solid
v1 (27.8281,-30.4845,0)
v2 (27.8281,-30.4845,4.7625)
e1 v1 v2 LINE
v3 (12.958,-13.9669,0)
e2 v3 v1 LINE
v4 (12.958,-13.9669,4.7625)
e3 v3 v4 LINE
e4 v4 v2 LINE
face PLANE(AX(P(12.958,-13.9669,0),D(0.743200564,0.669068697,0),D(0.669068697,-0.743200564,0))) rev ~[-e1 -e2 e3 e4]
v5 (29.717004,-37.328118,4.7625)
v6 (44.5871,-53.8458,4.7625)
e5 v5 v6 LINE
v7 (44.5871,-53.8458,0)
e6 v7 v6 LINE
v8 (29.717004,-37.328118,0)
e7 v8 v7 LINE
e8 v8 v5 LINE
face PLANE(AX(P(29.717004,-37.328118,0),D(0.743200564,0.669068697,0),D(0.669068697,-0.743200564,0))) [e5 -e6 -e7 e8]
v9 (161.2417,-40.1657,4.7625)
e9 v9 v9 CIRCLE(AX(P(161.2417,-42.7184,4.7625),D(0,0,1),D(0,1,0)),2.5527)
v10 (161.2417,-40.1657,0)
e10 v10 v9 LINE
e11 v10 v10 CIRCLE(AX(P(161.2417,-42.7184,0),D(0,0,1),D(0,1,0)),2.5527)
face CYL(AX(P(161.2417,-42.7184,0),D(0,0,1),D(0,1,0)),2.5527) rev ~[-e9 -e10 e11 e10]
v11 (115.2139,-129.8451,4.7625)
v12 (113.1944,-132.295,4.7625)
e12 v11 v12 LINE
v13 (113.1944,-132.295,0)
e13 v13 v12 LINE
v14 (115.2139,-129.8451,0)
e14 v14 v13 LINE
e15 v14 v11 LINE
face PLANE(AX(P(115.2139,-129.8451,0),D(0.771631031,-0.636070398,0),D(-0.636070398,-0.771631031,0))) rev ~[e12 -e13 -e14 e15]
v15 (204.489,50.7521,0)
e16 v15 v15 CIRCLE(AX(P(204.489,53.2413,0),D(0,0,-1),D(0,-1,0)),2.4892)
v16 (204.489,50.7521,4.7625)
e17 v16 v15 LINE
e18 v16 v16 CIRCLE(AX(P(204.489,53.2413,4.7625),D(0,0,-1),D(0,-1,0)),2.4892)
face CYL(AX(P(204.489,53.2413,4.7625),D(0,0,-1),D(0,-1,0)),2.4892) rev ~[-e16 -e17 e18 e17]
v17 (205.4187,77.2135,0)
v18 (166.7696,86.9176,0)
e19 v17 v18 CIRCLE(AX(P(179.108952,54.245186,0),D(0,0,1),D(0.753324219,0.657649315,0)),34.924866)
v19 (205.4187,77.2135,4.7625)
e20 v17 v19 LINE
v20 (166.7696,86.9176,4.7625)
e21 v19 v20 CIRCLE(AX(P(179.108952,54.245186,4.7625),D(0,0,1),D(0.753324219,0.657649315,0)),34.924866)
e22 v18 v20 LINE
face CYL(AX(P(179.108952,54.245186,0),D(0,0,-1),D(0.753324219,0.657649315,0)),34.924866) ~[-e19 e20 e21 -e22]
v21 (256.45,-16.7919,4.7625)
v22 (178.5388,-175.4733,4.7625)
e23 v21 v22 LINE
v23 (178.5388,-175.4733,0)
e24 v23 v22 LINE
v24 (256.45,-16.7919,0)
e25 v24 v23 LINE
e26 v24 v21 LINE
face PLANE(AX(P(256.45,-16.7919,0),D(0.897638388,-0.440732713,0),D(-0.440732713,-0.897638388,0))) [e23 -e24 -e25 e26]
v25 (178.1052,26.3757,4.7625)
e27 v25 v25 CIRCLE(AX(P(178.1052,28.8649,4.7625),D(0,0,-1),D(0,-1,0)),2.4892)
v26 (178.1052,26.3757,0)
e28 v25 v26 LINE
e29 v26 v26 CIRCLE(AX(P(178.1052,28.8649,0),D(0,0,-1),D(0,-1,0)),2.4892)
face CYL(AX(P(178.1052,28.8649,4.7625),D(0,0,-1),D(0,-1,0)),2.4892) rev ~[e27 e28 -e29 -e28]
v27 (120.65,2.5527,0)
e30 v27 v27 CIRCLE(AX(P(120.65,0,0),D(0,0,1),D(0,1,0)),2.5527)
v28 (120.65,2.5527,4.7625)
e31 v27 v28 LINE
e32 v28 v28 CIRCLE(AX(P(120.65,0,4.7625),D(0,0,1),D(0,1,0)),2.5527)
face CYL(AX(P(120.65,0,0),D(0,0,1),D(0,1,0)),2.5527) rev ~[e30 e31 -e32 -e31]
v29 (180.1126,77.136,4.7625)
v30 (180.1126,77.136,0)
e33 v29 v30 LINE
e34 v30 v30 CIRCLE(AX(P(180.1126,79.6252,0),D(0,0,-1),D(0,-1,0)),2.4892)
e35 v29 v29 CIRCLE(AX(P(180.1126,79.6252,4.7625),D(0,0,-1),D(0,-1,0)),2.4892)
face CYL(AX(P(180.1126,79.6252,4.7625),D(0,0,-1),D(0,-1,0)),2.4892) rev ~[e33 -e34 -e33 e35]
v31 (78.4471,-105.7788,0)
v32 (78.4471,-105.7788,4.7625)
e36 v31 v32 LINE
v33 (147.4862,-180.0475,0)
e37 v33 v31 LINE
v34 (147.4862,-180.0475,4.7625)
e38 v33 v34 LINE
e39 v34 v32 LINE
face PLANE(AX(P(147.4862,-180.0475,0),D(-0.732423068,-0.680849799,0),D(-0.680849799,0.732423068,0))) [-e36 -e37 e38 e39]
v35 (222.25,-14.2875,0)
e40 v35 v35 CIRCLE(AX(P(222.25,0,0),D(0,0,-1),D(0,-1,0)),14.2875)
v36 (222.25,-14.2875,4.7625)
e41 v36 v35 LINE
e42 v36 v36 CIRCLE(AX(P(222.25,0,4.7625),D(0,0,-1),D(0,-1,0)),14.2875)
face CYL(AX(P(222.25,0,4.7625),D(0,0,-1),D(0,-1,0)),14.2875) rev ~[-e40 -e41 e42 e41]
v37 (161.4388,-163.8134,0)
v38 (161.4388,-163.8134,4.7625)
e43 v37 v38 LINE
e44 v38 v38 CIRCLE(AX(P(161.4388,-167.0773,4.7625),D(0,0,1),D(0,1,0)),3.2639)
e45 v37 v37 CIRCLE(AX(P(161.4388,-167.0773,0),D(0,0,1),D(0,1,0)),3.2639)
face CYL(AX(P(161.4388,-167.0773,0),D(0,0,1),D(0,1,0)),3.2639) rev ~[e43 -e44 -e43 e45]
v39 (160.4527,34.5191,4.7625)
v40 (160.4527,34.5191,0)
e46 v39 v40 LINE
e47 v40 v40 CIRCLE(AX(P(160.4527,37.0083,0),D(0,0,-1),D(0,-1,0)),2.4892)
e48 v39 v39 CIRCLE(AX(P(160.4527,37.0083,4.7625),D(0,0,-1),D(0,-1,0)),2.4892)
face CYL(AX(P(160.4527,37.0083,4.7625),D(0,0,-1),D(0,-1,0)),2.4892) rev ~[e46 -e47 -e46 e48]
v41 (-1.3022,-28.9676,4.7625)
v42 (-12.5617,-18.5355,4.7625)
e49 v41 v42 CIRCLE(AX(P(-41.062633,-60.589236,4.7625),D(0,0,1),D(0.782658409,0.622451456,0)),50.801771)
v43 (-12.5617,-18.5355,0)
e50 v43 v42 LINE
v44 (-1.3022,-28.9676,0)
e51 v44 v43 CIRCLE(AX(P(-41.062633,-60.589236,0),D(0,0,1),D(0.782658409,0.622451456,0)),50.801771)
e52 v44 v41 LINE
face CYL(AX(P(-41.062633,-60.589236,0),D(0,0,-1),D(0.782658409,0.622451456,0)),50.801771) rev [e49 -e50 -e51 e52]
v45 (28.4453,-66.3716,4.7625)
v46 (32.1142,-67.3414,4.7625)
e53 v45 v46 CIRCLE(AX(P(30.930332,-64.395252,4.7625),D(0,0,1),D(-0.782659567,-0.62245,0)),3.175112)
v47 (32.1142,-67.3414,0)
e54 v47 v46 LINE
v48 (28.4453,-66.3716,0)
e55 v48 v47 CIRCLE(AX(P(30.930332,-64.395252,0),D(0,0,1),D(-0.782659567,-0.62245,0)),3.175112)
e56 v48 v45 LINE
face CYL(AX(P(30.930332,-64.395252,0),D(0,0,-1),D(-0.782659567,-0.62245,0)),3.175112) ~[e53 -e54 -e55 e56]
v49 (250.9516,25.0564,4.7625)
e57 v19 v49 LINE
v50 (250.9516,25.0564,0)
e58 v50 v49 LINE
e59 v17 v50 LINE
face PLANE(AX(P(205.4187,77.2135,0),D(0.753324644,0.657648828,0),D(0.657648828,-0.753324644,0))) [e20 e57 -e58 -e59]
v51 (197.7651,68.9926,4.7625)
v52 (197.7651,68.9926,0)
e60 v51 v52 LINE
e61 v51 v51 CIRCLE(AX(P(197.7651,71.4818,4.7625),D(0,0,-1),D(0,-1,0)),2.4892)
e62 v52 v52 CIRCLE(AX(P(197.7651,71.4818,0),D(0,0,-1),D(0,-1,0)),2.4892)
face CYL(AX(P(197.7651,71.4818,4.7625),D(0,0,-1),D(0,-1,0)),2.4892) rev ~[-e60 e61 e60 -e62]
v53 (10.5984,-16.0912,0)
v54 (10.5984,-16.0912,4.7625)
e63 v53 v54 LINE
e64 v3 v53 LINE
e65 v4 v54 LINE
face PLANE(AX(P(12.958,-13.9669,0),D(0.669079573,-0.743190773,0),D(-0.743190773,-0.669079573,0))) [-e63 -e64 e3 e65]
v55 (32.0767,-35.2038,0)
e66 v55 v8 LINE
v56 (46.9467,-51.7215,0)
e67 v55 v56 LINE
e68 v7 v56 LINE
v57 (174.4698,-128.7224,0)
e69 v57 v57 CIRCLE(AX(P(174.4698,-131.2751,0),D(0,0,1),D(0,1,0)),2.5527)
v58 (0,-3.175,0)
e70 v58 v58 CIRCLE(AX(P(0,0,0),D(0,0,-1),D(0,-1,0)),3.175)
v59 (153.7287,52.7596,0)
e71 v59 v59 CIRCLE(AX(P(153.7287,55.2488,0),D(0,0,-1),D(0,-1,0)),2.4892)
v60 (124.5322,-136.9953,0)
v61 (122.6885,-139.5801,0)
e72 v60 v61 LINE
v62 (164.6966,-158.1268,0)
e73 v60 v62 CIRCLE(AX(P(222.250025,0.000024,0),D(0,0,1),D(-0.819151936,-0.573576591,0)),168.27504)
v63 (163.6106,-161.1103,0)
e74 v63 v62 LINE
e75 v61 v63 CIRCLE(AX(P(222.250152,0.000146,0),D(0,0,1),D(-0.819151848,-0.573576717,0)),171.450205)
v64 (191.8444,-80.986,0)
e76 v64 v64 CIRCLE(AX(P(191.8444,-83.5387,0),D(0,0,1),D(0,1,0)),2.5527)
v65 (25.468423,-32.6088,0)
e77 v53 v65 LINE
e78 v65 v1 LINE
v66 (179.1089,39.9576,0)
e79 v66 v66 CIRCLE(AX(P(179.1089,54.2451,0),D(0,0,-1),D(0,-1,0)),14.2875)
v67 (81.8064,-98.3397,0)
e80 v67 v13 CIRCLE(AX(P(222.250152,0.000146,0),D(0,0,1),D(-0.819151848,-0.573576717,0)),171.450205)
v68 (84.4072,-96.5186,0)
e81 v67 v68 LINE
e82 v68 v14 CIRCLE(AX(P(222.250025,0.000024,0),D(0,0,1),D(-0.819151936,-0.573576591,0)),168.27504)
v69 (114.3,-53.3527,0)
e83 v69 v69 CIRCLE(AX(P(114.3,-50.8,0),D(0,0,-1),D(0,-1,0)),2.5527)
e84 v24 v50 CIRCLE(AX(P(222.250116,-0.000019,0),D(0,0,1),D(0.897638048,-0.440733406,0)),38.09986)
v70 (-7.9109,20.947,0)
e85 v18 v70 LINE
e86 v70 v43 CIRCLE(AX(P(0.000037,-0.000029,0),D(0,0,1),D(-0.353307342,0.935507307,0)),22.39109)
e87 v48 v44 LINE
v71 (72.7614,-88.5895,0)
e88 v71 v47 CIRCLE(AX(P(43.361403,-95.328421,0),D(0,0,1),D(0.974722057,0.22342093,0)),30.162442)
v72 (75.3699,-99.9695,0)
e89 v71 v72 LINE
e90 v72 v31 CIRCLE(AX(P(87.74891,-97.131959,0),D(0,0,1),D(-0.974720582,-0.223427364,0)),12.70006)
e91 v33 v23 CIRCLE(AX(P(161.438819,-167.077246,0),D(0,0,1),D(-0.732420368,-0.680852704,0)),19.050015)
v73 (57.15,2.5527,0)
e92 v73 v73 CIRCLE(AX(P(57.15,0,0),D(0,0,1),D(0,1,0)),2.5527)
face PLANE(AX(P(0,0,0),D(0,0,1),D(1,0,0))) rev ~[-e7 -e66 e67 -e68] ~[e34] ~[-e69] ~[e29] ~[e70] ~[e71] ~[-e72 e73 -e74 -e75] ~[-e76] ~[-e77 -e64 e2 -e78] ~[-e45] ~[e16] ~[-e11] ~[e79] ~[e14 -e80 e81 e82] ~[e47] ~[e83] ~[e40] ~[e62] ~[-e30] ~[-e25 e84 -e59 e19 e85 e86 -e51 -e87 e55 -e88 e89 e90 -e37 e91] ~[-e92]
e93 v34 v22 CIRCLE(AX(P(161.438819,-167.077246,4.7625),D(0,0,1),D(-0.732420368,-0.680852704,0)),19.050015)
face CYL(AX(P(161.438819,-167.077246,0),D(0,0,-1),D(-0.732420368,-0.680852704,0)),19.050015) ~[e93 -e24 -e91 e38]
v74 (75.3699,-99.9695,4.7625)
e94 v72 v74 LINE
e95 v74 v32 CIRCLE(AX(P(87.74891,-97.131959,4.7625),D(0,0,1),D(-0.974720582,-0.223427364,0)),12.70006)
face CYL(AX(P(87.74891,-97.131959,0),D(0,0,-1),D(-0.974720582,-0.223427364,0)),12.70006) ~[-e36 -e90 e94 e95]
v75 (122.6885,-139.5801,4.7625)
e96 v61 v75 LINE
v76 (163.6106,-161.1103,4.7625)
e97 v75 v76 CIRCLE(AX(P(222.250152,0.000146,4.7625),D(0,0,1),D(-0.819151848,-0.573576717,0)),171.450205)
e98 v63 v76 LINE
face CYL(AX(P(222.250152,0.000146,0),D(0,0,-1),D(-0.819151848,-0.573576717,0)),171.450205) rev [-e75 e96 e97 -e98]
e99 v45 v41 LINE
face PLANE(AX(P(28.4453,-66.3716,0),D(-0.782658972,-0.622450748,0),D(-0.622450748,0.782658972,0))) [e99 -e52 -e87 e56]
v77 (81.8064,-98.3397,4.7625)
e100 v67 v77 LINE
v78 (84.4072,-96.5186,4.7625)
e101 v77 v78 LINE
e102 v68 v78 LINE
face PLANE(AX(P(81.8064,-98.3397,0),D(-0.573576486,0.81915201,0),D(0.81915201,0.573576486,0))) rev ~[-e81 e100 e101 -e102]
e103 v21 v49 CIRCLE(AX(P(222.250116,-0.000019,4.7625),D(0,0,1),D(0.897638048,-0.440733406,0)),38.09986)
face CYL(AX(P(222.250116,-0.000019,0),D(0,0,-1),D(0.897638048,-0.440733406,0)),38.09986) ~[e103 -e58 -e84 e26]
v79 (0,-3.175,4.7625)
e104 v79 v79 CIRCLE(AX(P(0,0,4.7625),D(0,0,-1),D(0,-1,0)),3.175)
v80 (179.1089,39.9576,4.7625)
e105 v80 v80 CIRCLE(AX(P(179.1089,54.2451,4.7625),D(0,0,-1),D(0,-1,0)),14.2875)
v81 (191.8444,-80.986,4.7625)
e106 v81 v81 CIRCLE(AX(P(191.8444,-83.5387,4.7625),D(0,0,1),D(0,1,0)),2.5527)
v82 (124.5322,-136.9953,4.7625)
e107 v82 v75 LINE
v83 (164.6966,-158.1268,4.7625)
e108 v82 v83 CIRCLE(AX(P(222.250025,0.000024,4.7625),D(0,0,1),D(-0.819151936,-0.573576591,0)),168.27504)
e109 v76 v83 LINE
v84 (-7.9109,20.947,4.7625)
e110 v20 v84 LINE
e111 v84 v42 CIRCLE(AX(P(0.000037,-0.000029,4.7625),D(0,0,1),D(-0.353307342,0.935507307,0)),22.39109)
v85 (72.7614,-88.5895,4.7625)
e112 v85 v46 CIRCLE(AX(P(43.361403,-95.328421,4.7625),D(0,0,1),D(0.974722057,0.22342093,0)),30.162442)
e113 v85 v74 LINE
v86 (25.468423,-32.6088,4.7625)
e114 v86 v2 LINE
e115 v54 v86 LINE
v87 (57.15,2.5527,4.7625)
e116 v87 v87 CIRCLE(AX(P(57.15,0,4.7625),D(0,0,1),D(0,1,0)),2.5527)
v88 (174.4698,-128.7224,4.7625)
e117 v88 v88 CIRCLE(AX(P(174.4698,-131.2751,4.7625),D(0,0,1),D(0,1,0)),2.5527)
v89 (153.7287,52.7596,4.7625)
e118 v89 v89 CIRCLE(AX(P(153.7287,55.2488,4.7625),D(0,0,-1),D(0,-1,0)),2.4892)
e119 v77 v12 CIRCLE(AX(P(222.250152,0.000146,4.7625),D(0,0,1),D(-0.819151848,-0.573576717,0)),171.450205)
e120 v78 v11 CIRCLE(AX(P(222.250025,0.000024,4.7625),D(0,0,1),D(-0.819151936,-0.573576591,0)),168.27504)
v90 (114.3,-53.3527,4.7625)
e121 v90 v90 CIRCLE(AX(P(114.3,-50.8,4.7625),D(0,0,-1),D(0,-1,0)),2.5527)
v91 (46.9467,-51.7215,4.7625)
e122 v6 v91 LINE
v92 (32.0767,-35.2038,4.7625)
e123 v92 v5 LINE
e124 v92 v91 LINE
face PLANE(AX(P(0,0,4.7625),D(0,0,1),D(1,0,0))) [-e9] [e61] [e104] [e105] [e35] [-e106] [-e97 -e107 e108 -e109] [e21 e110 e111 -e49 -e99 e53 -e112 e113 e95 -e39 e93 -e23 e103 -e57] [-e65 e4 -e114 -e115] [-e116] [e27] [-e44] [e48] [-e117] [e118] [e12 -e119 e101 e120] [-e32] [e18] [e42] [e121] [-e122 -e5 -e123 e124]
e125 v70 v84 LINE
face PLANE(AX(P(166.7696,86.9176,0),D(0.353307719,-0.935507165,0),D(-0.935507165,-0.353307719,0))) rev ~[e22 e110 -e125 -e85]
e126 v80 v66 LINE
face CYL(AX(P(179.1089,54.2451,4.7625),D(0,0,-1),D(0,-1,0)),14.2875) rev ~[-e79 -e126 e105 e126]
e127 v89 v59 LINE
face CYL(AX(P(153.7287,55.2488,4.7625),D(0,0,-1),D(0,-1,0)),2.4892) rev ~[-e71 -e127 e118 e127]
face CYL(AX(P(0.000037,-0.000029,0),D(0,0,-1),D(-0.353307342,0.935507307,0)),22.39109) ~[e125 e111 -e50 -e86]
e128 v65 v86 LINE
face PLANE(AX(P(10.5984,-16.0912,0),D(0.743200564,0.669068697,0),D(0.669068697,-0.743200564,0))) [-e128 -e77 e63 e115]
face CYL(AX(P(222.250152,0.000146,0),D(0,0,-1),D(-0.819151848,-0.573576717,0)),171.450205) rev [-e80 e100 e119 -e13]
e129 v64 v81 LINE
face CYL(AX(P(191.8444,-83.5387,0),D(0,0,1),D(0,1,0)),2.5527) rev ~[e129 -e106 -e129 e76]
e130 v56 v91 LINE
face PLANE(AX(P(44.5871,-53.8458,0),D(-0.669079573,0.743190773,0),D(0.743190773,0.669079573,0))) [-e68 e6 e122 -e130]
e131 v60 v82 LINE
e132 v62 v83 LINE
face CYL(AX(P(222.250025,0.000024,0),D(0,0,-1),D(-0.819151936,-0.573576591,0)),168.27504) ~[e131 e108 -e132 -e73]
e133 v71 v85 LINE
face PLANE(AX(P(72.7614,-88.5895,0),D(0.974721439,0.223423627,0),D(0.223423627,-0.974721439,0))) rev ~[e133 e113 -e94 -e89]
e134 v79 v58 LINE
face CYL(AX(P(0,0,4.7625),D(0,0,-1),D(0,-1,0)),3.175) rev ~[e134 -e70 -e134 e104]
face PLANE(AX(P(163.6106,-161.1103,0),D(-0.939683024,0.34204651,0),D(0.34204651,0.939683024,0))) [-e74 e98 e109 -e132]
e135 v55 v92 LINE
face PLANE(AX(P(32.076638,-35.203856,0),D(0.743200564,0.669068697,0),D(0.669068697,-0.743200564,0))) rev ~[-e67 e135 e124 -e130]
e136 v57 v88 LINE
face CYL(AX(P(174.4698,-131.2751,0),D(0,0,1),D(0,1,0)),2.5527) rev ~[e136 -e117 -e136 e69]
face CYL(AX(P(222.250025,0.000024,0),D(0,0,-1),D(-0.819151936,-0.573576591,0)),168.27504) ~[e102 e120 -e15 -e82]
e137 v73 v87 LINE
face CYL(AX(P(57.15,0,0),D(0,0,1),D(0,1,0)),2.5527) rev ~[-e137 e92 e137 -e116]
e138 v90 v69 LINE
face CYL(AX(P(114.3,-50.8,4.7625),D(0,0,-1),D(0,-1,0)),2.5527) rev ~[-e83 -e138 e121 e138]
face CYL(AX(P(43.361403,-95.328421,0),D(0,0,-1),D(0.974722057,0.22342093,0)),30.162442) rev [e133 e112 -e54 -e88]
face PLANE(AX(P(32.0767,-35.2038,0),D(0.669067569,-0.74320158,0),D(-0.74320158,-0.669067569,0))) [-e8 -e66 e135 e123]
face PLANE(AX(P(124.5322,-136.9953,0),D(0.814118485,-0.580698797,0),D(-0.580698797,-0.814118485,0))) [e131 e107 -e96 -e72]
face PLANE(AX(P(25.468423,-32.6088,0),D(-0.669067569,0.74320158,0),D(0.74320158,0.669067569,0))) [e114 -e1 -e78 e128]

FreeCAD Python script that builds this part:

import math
import FreeCAD as App
import Part
import Sketcher
Q = App.Units.Quantity


def add_polygon(sketch, points):
    """Adds a closed chain of lines whose ends are joined by coincident constraints."""
    first, n = sketch.GeometryCount, len(points)
    for a, b in zip(points, points[1:] + points[:1]):
        sketch.addGeometry(Part.LineSegment(App.Vector(*a, 0), App.Vector(*b, 0)), False)
    for i in range(n):
        sketch.addConstraint(Sketcher.Constraint("Coincident", first + i, 2, first + (i + 1) % n, 1))

doc = App.newDocument("Part")
params = doc.addObject("Spreadsheet::Sheet", "Params")
for row, (alias, value) in enumerate([
    ("sketch1_radius", "0.5 in"),
    ("sketch1_radius2", "1.5 in"),
    ("sketch1_radius3", "0.75 in"),
    ("sketch1_radius4", "6.75 in"),
    ("sketch1_radius5", "0.125 in"),
    ("pad1_length", "0.1875 in"),
    ("sketch2_diameter", "0.25 in"),
    ("hole_diameter", "0.25 in"),
    ("sketch3_diameter", "1.125 in"),
    ("hole2_diameter", "1.125 in"),
    ("sketch4_diameter", "0.201 in"),
    ("hole3_diameter", "0.201 in"),
    ("sketch5_diameter", "0.196 in"),
    ("hole4_diameter", "0.196 in"),
    ("sketch6_diameter", "0.201 in"),
    ("hole5_diameter", "0.201 in"),
    ("sketch7_diameter", "0.257 in"),
    ("hole6_diameter", "0.257 in"),
], start=1):
    params.set(f"A{row}", alias)
    params.set(f"B{row}", "=" + value)
    params.setAlias(f"B{row}", alias)

body = doc.addObject("PartDesign::Body", "Body")

# Sketch on XY plane
sketch1 = doc.addObject("Sketcher::SketchObject", "Sketch")
body.addObject(sketch1)
sketch1.AttachmentSupport = (doc.XY_Plane, [""])
sketch1.MapMode = "FlatFace"
sketch1.addGeometry(Part.LineSegment(App.Vector(166.7696, 86.9176, 0), App.Vector(-7.9109, 20.947, 0)), False)  # 0
sketch1.addGeometry(Part.ArcOfCircle(Part.Circle(App.Vector(0, 0, 0), App.Vector(0, 0, 1), 22.391051), math.radians(110.689679), math.radians(235.874101)), False)  # 1
sketch1.addGeometry(Part.ArcOfCircle(Part.Circle(App.Vector(-41.062633, -60.589236, 0), App.Vector(0, 0, 1), 50.801771), math.radians(38.495375), math.radians(55.873465)), False)  # 2
sketch1.addGeometry(Part.LineSegment(App.Vector(-1.3022, -28.9676, 0), App.Vector(28.4453, -66.3716, 0)), False)  # 3
sketch1.addGeometry(Part.ArcOfCircle(Part.Circle(App.Vector(30.9303, -64.3953, 0), App.Vector(0, 0, 1), 3.175057), math.radians(-141.505059), math.radians(-68.107109)), False)  # 4
sketch1.addGeometry(Part.ArcOfCircle(Part.Circle(App.Vector(43.3613, -95.3285, 0), App.Vector(0, 0, 1), 30.16256), math.radians(12.910144), math.radians(111.893581)), False)  # 5
sketch1.addGeometry(Part.LineSegment(App.Vector(72.7614, -88.5895, 0), App.Vector(75.3699, -99.9695, 0)), False)  # 6
sketch1.addGeometry(Part.ArcOfCircle(Part.Circle(App.Vector(87.7488, -97.132, 0), App.Vector(0, 0, 1), 12.699944), math.radians(-167.08965), math.radians(-137.089666)), False)  # 7
sketch1.addGeometry(Part.LineSegment(App.Vector(78.4471, -105.7788, 0), App.Vector(147.4862, -180.0475, 0)), False)  # 8
sketch1.addGeometry(Part.ArcOfCircle(Part.Circle(App.Vector(161.4388, -167.0773, 0), App.Vector(0, 0, 1), 19.049964), math.radians(-137.089768), math.radians(-26.150768)), False)  # 9
sketch1.addGeometry(Part.LineSegment(App.Vector(178.5388, -175.4733, 0), App.Vector(256.45, -16.7919, 0)), False)  # 10
sketch1.addGeometry(Part.ArcOfCircle(Part.Circle(App.Vector(222.25, 0, 0), App.Vector(0, 0, 1), 38.099973), math.radians(-26.150633), math.radians(41.12085)), False)  # 11
sketch1.addGeometry(Part.LineSegment(App.Vector(250.9516, 25.0564, 0), App.Vector(205.4187, 77.2135, 0)), False)  # 12
sketch1.addGeometry(Part.ArcOfCircle(Part.Circle(App.Vector(179.1089, 54.2451, 0), App.Vector(0, 0, 1), 34.924962), math.radians(41.120891), math.radians(110.689858)), False)  # 13
sketch1.addGeometry(Part.ArcOfCircle(Part.Circle(App.Vector(222.25, 0, 0), App.Vector(0, 0, 1), 171.449997), math.radians(-144.999991), math.radians(-129.500005)), False)  # 14
sketch1.addGeometry(Part.LineSegment(App.Vector(81.8064, -98.3397, 0), App.Vector(84.4072, -96.5186, 0)), False)  # 15
sketch1.addGeometry(Part.ArcOfCircle(Part.Circle(App.Vector(222.25, 0, 0), App.Vector(0, 0, 1), 168.275006), math.radians(-144.999991), math.radians(-129.500016)), False)  # 16
sketch1.addGeometry(Part.LineSegment(App.Vector(115.2139, -129.8451, 0), App.Vector(113.1944, -132.295, 0)), False)  # 17
sketch1.addGeometry(Part.ArcOfCircle(Part.Circle(App.Vector(222.25, 0, 0), App.Vector(0, 0, 1), 171.449997), math.radians(-125.499995), math.radians(-110.000015)), False)  # 18
sketch1.addGeometry(Part.LineSegment(App.Vector(122.6885, -139.5801, 0), App.Vector(124.5322, -136.9953, 0)), False)  # 19
sketch1.addGeometry(Part.ArcOfCircle(Part.Circle(App.Vector(222.25, 0, 0), App.Vector(0, 0, 1), 168.275006), math.radians(-125.500001), math.radians(-109.999985)), False)  # 20
sketch1.addGeometry(Part.LineSegment(App.Vector(164.6966, -158.1268, 0), App.Vector(163.6106, -161.1103, 0)), False)  # 21
add_polygon(sketch1, [(10.5984, -16.0912), (12.958, -13.9669), (27.8281, -30.4845), (25.468423, -32.6088)])  # lines 22-25
add_polygon(sketch1, [(44.5871, -53.8458), (29.717004, -37.328118), (32.076638, -35.203856), (46.9467, -51.7215)])  # lines 26-29
sketch1.addConstraint(Sketcher.Constraint("Tangent", 0, 2, 1, 1))
sketch1.addConstraint(Sketcher.Constraint("Tangent", 1, 2, 2, 2))
sketch1.addConstraint(Sketcher.Constraint("Tangent", 2, 1, 3, 1))
sketch1.addConstraint(Sketcher.Constraint("Tangent", 3, 2, 4, 1))
sketch1.addConstraint(Sketcher.Constraint("Tangent", 4, 2, 5, 2))
sketch1.addConstraint(Sketcher.Constraint("Tangent", 5, 1, 6, 1))
sketch1.addConstraint(Sketcher.Constraint("Tangent", 6, 2, 7, 1))
sketch1.addConstraint(Sketcher.Constraint("Tangent", 7, 2, 8, 1))
sketch1.addConstraint(Sketcher.Constraint("Tangent", 8, 2, 9, 1))
sketch1.addConstraint(Sketcher.Constraint("Tangent", 9, 2, 10, 1))
sketch1.addConstraint(Sketcher.Constraint("Tangent", 10, 2, 11, 1))
sketch1.addConstraint(Sketcher.Constraint("Tangent", 11, 2, 12, 1))
sketch1.addConstraint(Sketcher.Constraint("Tangent", 12, 2, 13, 1))
sketch1.addConstraint(Sketcher.Constraint("Tangent", 13, 2, 0, 1))
sketch1.addConstraint(Sketcher.Constraint("Coincident", 14, 1, 15, 1))
sketch1.addConstraint(Sketcher.Constraint("Coincident", 15, 2, 16, 1))
sketch1.addConstraint(Sketcher.Constraint("Coincident", 16, 2, 17, 1))
sketch1.addConstraint(Sketcher.Constraint("Coincident", 17, 2, 14, 2))
sketch1.addConstraint(Sketcher.Constraint("Coincident", 18, 1, 19, 1))
sketch1.addConstraint(Sketcher.Constraint("Coincident", 19, 2, 20, 1))
sketch1.addConstraint(Sketcher.Constraint("Coincident", 20, 2, 21, 1))
sketch1.addConstraint(Sketcher.Constraint("Coincident", 21, 2, 18, 2))
sketch1.addConstraint(Sketcher.Constraint("Coincident", 1, 3, -1, 1))
sketch1.addConstraint(Sketcher.Constraint("Coincident", 14, 3, 11, 3))
sketch1.addConstraint(Sketcher.Constraint("Coincident", 16, 3, 11, 3))
sketch1.addConstraint(Sketcher.Constraint("Coincident", 18, 3, 11, 3))
sketch1.addConstraint(Sketcher.Constraint("Coincident", 20, 3, 11, 3))
sketch1.addConstraint(Sketcher.Constraint("Equal", 14, 18))
sketch1.addConstraint(Sketcher.Constraint("Equal", 16, 20))
sketch1.addConstraint(Sketcher.Constraint("PointOnObject", 11, 3, -1))
sketch1.addConstraint(Sketcher.Constraint("Perpendicular", 22, 23))
sketch1.addConstraint(Sketcher.Constraint("Perpendicular", 23, 24))
sketch1.addConstraint(Sketcher.Constraint("Perpendicular", 24, 25))
sketch1.addConstraint(Sketcher.Constraint("Parallel", 25, 26))
sketch1.addConstraint(Sketcher.Constraint("Perpendicular", 26, 27))
sketch1.addConstraint(Sketcher.Constraint("Perpendicular", 27, 28))
sketch1.addConstraint(Sketcher.Constraint("Perpendicular", 28, 29))
sketch1.addConstraint(Sketcher.Constraint("Equal", 21, 22))
sketch1.addConstraint(Sketcher.Constraint("Equal", 25, 26))
sketch1.addConstraint(Sketcher.Constraint("Equal", 24, 27))
sketch1.addConstraint(Sketcher.Constraint("Radius", 7, Q("0.5 in")))
sketch1.addConstraint(Sketcher.Constraint("Radius", 11, Q("1.5 in")))
sketch1.addConstraint(Sketcher.Constraint("Radius", 9, Q("0.75 in")))
sketch1.addConstraint(Sketcher.Constraint("Radius", 14, Q("6.75 in")))
sketch1.addConstraint(Sketcher.Constraint("Angle", 15, Q("35 deg")))
sketch1.addConstraint(Sketcher.Constraint("Radius", 4, Q("0.125 in")))
sketch1.addConstraint(Sketcher.Constraint("Radius", 5, Q("1.1875 in")))
sketch1.addConstraint(Sketcher.Constraint("Radius", 13, Q("1.375 in")))
sketch1.addConstraint(Sketcher.Constraint("Radius", 16, Q("6.625 in")))
sketch1.addConstraint(Sketcher.Constraint("DistanceX", -1, 1, 11, 3, Q("8.75 in")))
sketch1.addConstraint(Sketcher.Constraint("Radius", 1, Q("22.391 mm")))
sketch1.addConstraint(Sketcher.Constraint("Angle", 17, Q("-129.4994 deg")))
sketch1.addConstraint(Sketcher.Constraint("Angle", 19, Q("54.5003 deg")))
sketch1.addConstraint(Sketcher.Constraint("Angle", 0, Q("-159.3102 deg")))
sketch1.addConstraint(Sketcher.Constraint("Angle", 6, Q("-77.0898 deg")))
sketch1.addConstraint(Sketcher.Constraint("Angle", 8, Q("-47.09 deg")))
sketch1.addConstraint(Sketcher.Constraint("Angle", 10, Q("63.8494 deg")))
sketch1.addConstraint(Sketcher.Constraint("Angle", 12, Q("131.1208 deg")))
sketch1.addConstraint(Sketcher.Constraint("Radius", 2, Q("50.8018 mm")))
sketch1.addConstraint(Sketcher.Constraint("Distance", 23, Q("0.875 in")))
sketch1.addConstraint(Sketcher.Constraint("DistanceY", 16, 2, -1, 1, Q("5.112 in")))
sketch1.addConstraint(Sketcher.Constraint("DistanceY", 7, 3, 5, 3, Q("0.071 in")))
sketch1.addConstraint(Sketcher.Constraint("DistanceX", 2, 1, 4, 3, Q("1.269 in")))
sketch1.addConstraint(Sketcher.Constraint("DistanceX", 7, 2, 17, 2, Q("1.368 in")))
sketch1.addConstraint(Sketcher.Constraint("Distance", 10, Q("6.9597 in")))
sketch1.addConstraint(Sketcher.Constraint("DistanceY", 2, 3, -1, 1, Q("2.3854 in")))
sketch1.addConstraint(Sketcher.Constraint("DistanceX", -1, 1, 23, 2, Q("1.0956 in")))
sketch1.addConstraint(Sketcher.Constraint("DistanceX", -1, 1, 24, 2, Q("1.0027 in")))
sketch1.addConstraint(Sketcher.Constraint("DistanceY", 24, 2, -1, 1, Q("1.2838 in")))
sketch1.addConstraint(Sketcher.Constraint("DistanceY", 26, 2, -1, 1, Q("1.4696 in")))
sketch1.addConstraint(Sketcher.Constraint("DistanceX", -1, 1, 28, 2, Q("1.8483 in")))
sketch1.addConstraint(Sketcher.Constraint("DistanceX", 6, 2, 14, 1, Q("0.2534 in")))
sketch1.addConstraint(Sketcher.Constraint("DistanceY", 8, 2, 18, 1, Q("1.5932 in")))
sketch1.addConstraint(Sketcher.Constraint("DistanceX", 9, 3, 21, 2, Q("0.0855 in")))
sketch1.addConstraint(Sketcher.Constraint("DistanceX", -1, 1, 20, 2, Q("164.6966 mm")))
sketch1.setExpression("Constraints[48]", "Params.sketch1_radius")
sketch1.setExpression("Constraints[49]", "Params.sketch1_radius2")
sketch1.setExpression("Constraints[50]", "Params.sketch1_radius3")
sketch1.setExpression("Constraints[51]", "Params.sketch1_radius4")
sketch1.setExpression("Constraints[53]", "Params.sketch1_radius5")
pad1 = doc.addObject("PartDesign::Pad", "Pad")
body.addObject(pad1)
pad1.Profile = sketch1
pad1.setExpression("Length", "Params.pad1_length")

# Sketch on XY plane
sketch2 = doc.addObject("Sketcher::SketchObject", "Sketch001")
body.addObject(sketch2)
sketch2.AttachmentSupport = (doc.XY_Plane, [""])
sketch2.MapMode = "FlatFace"
sketch2.AttachmentOffset = App.Placement(App.Vector(0, 0, 0.1875 * 25.4), App.Rotation())
sketch2.addGeometry(Part.Circle(App.Vector(0, 0, 0), App.Vector(0, 0, 1), 3.175), False)
sketch2.addConstraint(Sketcher.Constraint("Coincident", 0, 3, -1, 1))
sketch2.addConstraint(Sketcher.Constraint("Diameter", 0, Q("0.25 in")))
sketch2.setExpression("Constraints[1]", "Params.sketch2_diameter")
doc.recompute()
hole = doc.addObject("PartDesign::Hole", "Hole")
body.addObject(hole)
hole.Profile = sketch2
hole.ThreadType = "None"
hole.setExpression("Diameter", "Params.hole_diameter")
hole.DepthType = "ThroughAll"

# Sketch on XY plane
sketch3 = doc.addObject("Sketcher::SketchObject", "Sketch002")
body.addObject(sketch3)
sketch3.AttachmentSupport = (doc.XY_Plane, [""])
sketch3.MapMode = "FlatFace"
sketch3.AttachmentOffset = App.Placement(App.Vector(0, 0, 0.1875 * 25.4), App.Rotation())
sketch3.addGeometry(Part.Circle(App.Vector(222.25, 0, 0), App.Vector(0, 0, 1), 14.2875), False)
sketch3.addGeometry(Part.Circle(App.Vector(179.1089, 54.2451, 0), App.Vector(0, 0, 1), 14.2875), False)
sketch3.addConstraint(Sketcher.Constraint("Equal", 0, 1))
sketch3.addConstraint(Sketcher.Constraint("PointOnObject", 0, 3, -1))
sketch3.addConstraint(Sketcher.Constraint("Diameter", 0, Q("1.125 in")))
sketch3.addConstraint(Sketcher.Constraint("DistanceX", -1, 1, 0, 3, Q("8.75 in")))
sketch3.addConstraint(Sketcher.Constraint("DistanceX", -1, 1, 1, 3, Q("179.109 mm")))
sketch3.addConstraint(Sketcher.Constraint("DistanceY", -1, 1, 1, 3, Q("54.245 mm")))
sketch3.setExpression("Constraints[2]", "Params.sketch3_diameter")
doc.recompute()
hole2 = doc.addObject("PartDesign::Hole", "Hole001")
body.addObject(hole2)
hole2.Profile = sketch3
hole2.ThreadType = "None"
hole2.setExpression("Diameter", "Params.hole2_diameter")
hole2.DepthType = "ThroughAll"

# Sketch on XY plane
sketch4 = doc.addObject("Sketcher::SketchObject", "Sketch003")
body.addObject(sketch4)
sketch4.AttachmentSupport = (doc.XY_Plane, [""])
sketch4.MapMode = "FlatFace"
sketch4.AttachmentOffset = App.Placement(App.Vector(0, 0, 0.1875 * 25.4), App.Rotation())
sketch4.addGeometry(Part.Circle(App.Vector(114.3, -50.8, 0), App.Vector(0, 0, 1), 2.5527), False)
sketch4.addConstraint(Sketcher.Constraint("Diameter", 0, Q("0.201 in")))
sketch4.addConstraint(Sketcher.Constraint("DistanceY", 0, 3, -1, 1, Q("2 in")))
sketch4.addConstraint(Sketcher.Constraint("DistanceX", -1, 1, 0, 3, Q("4.5 in")))
sketch4.setExpression("Constraints[0]", "Params.sketch4_diameter")
doc.recompute()
hole3 = doc.addObject("PartDesign::Hole", "Hole002")
body.addObject(hole3)
hole3.Profile = sketch4
hole3.ThreadType = "None"
hole3.setExpression("Diameter", "Params.hole3_diameter")
hole3.DepthType = "ThroughAll"

# Sketch on XY plane
sketch5 = doc.addObject("Sketcher::SketchObject", "Sketch004")
body.addObject(sketch5)
sketch5.AttachmentSupport = (doc.XY_Plane, [""])
sketch5.MapMode = "FlatFace"
sketch5.AttachmentOffset = App.Placement(App.Vector(0, 0, 0.1875 * 25.4), App.Rotation())
sketch5.addGeometry(Part.Circle(App.Vector(180.1126, 79.6252, 0), App.Vector(0, 0, 1), 2.4892), False)
sketch5.addGeometry(Part.Circle(App.Vector(197.7651, 71.4818, 0), App.Vector(0, 0, 1), 2.4892), False)
sketch5.addGeometry(Part.Circle(App.Vector(204.489, 53.2413, 0), App.Vector(0, 0, 1), 2.4892), False)
sketch5.addGeometry(Part.Circle(App.Vector(178.1052, 28.8649, 0), App.Vector(0, 0, 1), 2.4892), False)
sketch5.addGeometry(Part.Circle(App.Vector(160.4527, 37.0083, 0), App.Vector(0, 0, 1), 2.4892), False)
sketch5.addGeometry(Part.Circle(App.Vector(153.7287, 55.2488, 0), App.Vector(0, 0, 1), 2.4892), False)
sketch5.addConstraint(Sketcher.Constraint("Equal", 0, 1))
sketch5.addConstraint(Sketcher.Constraint("Equal", 1, 2))
sketch5.addConstraint(Sketcher.Constraint("Equal", 2, 3))
sketch5.addConstraint(Sketcher.Constraint("Equal", 3, 4))
sketch5.addConstraint(Sketcher.Constraint("Equal", 4, 5))
sketch5.addConstraint(Sketcher.Constraint("Diameter", 0, Q("0.196 in")))
sketch5.addConstraint(Sketcher.Constraint("DistanceX", 3, 3, 1, 3, Q("0.774 in")))
sketch5.addConstraint(Sketcher.Constraint("DistanceX", 4, 3, 0, 3, Q("0.774 in")))
sketch5.addConstraint(Sketcher.Constraint("DistanceX", 4, 3, 1, 3, Q("1.469 in")))
sketch5.addConstraint(Sketcher.Constraint("DistanceX", -1, 1, 5, 3, Q("6.0523 in")))
sketch5.addConstraint(Sketcher.Constraint("DistanceY", 1, 3, 0, 3, Q("0.3206 in")))
sketch5.addConstraint(Sketcher.Constraint("DistanceX", 0, 3, 2, 3, Q("0.9597 in")))
sketch5.addConstraint(Sketcher.Constraint("DistanceY", 3, 3, 2, 3, Q("0.9597 in")))
sketch5.addConstraint(Sketcher.Constraint("DistanceY", 3, 3, 4, 3, Q("0.3206 in")))
sketch5.addConstraint(Sketcher.Constraint("DistanceY", 5, 3, 0, 3, Q("0.9597 in")))
sketch5.addConstraint(Sketcher.Constraint("DistanceX", 5, 3, 3, 3, Q("0.9597 in")))
sketch5.addConstraint(Sketcher.Constraint("DistanceY", -1, 1, 0, 3, Q("79.6252 mm")))
sketch5.addConstraint(Sketcher.Constraint("DistanceY", -1, 1, 2, 3, Q("53.2413 mm")))
sketch5.setExpression("Constraints[5]", "Params.sketch5_diameter")
doc.recompute()
hole4 = doc.addObject("PartDesign::Hole", "Hole003")
body.addObject(hole4)
hole4.Profile = sketch5
hole4.ThreadType = "None"
hole4.setExpression("Diameter", "Params.hole4_diameter")
hole4.DepthType = "ThroughAll"

# Sketch on XY plane
sketch6 = doc.addObject("Sketcher::SketchObject", "Sketch005")
body.addObject(sketch6)
sketch6.AttachmentSupport = (doc.XY_Plane, [""])
sketch6.MapMode = "FlatFace"
sketch6.addGeometry(Part.Circle(App.Vector(161.2417, -42.7184, 0), App.Vector(0, 0, 1), 2.5527), False)
sketch6.addGeometry(Part.Circle(App.Vector(0, 0, 0), App.Vector(0, 0, 1), 2.5527), False)
sketch6.addGeometry(Part.Circle(App.Vector(222.25, 0, 0), App.Vector(0, 0, 1), 2.5527), False)
sketch6.addGeometry(Part.Circle(App.Vector(120.65, 0, 0), App.Vector(0, 0, 1), 2.5527), False)
sketch6.addGeometry(Part.Circle(App.Vector(57.15, 0, 0), App.Vector(0, 0, 1), 2.5527), False)
sketch6.addGeometry(Part.Circle(App.Vector(191.8444, -83.5387, 0), App.Vector(0, 0, 1), 2.5527), False)
sketch6.addGeometry(Part.Circle(App.Vector(174.4698, -131.2751, 0), App.Vector(0, 0, 1), 2.5527), False)
sketch6.addConstraint(Sketcher.Constraint("Coincident", 1, 3, -1, 1))
sketch6.addConstraint(Sketcher.Constraint("Equal", 0, 1))
sketch6.addConstraint(Sketcher.Constraint("Equal", 1, 2))
sketch6.addConstraint(Sketcher.Constraint("Equal", 2, 3))
sketch6.addConstraint(Sketcher.Constraint("Equal", 3, 4))
sketch6.addConstraint(Sketcher.Constraint("Equal", 4, 5))
sketch6.addConstraint(Sketcher.Constraint("Equal", 5, 6))
sketch6.addConstraint(Sketcher.Constraint("PointOnObject", 2, 3, -1))
sketch6.addConstraint(Sketcher.Constraint("PointOnObject", 3, 3, -1))
sketch6.addConstraint(Sketcher.Constraint("PointOnObject", 4, 3, -1))
sketch6.addConstraint(Sketcher.Constraint("Diameter", 0, Q("0.201 in")))
sketch6.addConstraint(Sketcher.Constraint("DistanceX", 3, 3, 2, 3, Q("4 in")))
sketch6.addConstraint(Sketcher.Constraint("DistanceX", 4, 3, 3, 3, Q("2.5 in")))
sketch6.addConstraint(Sketcher.Constraint("DistanceX", -1, 1, 2, 3, Q("8.75 in")))
sketch6.addConstraint(Sketcher.Constraint("DistanceX", -1, 1, 0, 3, Q("6.3481 in")))
sketch6.addConstraint(Sketcher.Constraint("DistanceX", -1, 1, 6, 3, Q("6.8689 in")))
sketch6.addConstraint(Sketcher.Constraint("DistanceY", 6, 3, -1, 1, Q("5.1683 in")))
sketch6.addConstraint(Sketcher.Constraint("DistanceY", 5, 3, 0, 3, Q("1.6071 in")))
sketch6.addConstraint(Sketcher.Constraint("DistanceY", 0, 3, -1, 1, Q("42.7184 mm")))
sketch6.addConstraint(Sketcher.Constraint("DistanceX", -1, 1, 5, 3, Q("191.8444 mm")))
sketch6.setExpression("Constraints[10]", "Params.sketch6_diameter")
doc.recompute()
hole5 = doc.addObject("PartDesign::Hole", "Hole004")
body.addObject(hole5)
hole5.Profile = sketch6
hole5.ThreadType = "None"
hole5.setExpression("Diameter", "Params.hole5_diameter")
hole5.DepthType = "ThroughAll"
hole5.Reversed = True

# Sketch on XY plane
sketch7 = doc.addObject("Sketcher::SketchObject", "Sketch006")
body.addObject(sketch7)
sketch7.AttachmentSupport = (doc.XY_Plane, [""])
sketch7.MapMode = "FlatFace"
sketch7.addGeometry(Part.Circle(App.Vector(161.4388, -167.0773, 0), App.Vector(0, 0, 1), 3.2639), False)
sketch7.addConstraint(Sketcher.Constraint("Diameter", 0, Q("0.257 in")))
sketch7.addConstraint(Sketcher.Constraint("DistanceX", -1, 1, 0, 3, Q("161.4388 mm")))
sketch7.addConstraint(Sketcher.Constraint("DistanceY", 0, 3, -1, 1, Q("167.0773 mm")))
sketch7.setExpression("Constraints[0]", "Params.sketch7_diameter")
doc.recompute()
hole6 = doc.addObject("PartDesign::Hole", "Hole005")
body.addObject(hole6)
hole6.Profile = sketch7
hole6.ThreadType = "None"
hole6.setExpression("Diameter", "Params.hole6_diameter")
hole6.DepthType = "ThroughAll"
hole6.Reversed = True

doc.recompute()
